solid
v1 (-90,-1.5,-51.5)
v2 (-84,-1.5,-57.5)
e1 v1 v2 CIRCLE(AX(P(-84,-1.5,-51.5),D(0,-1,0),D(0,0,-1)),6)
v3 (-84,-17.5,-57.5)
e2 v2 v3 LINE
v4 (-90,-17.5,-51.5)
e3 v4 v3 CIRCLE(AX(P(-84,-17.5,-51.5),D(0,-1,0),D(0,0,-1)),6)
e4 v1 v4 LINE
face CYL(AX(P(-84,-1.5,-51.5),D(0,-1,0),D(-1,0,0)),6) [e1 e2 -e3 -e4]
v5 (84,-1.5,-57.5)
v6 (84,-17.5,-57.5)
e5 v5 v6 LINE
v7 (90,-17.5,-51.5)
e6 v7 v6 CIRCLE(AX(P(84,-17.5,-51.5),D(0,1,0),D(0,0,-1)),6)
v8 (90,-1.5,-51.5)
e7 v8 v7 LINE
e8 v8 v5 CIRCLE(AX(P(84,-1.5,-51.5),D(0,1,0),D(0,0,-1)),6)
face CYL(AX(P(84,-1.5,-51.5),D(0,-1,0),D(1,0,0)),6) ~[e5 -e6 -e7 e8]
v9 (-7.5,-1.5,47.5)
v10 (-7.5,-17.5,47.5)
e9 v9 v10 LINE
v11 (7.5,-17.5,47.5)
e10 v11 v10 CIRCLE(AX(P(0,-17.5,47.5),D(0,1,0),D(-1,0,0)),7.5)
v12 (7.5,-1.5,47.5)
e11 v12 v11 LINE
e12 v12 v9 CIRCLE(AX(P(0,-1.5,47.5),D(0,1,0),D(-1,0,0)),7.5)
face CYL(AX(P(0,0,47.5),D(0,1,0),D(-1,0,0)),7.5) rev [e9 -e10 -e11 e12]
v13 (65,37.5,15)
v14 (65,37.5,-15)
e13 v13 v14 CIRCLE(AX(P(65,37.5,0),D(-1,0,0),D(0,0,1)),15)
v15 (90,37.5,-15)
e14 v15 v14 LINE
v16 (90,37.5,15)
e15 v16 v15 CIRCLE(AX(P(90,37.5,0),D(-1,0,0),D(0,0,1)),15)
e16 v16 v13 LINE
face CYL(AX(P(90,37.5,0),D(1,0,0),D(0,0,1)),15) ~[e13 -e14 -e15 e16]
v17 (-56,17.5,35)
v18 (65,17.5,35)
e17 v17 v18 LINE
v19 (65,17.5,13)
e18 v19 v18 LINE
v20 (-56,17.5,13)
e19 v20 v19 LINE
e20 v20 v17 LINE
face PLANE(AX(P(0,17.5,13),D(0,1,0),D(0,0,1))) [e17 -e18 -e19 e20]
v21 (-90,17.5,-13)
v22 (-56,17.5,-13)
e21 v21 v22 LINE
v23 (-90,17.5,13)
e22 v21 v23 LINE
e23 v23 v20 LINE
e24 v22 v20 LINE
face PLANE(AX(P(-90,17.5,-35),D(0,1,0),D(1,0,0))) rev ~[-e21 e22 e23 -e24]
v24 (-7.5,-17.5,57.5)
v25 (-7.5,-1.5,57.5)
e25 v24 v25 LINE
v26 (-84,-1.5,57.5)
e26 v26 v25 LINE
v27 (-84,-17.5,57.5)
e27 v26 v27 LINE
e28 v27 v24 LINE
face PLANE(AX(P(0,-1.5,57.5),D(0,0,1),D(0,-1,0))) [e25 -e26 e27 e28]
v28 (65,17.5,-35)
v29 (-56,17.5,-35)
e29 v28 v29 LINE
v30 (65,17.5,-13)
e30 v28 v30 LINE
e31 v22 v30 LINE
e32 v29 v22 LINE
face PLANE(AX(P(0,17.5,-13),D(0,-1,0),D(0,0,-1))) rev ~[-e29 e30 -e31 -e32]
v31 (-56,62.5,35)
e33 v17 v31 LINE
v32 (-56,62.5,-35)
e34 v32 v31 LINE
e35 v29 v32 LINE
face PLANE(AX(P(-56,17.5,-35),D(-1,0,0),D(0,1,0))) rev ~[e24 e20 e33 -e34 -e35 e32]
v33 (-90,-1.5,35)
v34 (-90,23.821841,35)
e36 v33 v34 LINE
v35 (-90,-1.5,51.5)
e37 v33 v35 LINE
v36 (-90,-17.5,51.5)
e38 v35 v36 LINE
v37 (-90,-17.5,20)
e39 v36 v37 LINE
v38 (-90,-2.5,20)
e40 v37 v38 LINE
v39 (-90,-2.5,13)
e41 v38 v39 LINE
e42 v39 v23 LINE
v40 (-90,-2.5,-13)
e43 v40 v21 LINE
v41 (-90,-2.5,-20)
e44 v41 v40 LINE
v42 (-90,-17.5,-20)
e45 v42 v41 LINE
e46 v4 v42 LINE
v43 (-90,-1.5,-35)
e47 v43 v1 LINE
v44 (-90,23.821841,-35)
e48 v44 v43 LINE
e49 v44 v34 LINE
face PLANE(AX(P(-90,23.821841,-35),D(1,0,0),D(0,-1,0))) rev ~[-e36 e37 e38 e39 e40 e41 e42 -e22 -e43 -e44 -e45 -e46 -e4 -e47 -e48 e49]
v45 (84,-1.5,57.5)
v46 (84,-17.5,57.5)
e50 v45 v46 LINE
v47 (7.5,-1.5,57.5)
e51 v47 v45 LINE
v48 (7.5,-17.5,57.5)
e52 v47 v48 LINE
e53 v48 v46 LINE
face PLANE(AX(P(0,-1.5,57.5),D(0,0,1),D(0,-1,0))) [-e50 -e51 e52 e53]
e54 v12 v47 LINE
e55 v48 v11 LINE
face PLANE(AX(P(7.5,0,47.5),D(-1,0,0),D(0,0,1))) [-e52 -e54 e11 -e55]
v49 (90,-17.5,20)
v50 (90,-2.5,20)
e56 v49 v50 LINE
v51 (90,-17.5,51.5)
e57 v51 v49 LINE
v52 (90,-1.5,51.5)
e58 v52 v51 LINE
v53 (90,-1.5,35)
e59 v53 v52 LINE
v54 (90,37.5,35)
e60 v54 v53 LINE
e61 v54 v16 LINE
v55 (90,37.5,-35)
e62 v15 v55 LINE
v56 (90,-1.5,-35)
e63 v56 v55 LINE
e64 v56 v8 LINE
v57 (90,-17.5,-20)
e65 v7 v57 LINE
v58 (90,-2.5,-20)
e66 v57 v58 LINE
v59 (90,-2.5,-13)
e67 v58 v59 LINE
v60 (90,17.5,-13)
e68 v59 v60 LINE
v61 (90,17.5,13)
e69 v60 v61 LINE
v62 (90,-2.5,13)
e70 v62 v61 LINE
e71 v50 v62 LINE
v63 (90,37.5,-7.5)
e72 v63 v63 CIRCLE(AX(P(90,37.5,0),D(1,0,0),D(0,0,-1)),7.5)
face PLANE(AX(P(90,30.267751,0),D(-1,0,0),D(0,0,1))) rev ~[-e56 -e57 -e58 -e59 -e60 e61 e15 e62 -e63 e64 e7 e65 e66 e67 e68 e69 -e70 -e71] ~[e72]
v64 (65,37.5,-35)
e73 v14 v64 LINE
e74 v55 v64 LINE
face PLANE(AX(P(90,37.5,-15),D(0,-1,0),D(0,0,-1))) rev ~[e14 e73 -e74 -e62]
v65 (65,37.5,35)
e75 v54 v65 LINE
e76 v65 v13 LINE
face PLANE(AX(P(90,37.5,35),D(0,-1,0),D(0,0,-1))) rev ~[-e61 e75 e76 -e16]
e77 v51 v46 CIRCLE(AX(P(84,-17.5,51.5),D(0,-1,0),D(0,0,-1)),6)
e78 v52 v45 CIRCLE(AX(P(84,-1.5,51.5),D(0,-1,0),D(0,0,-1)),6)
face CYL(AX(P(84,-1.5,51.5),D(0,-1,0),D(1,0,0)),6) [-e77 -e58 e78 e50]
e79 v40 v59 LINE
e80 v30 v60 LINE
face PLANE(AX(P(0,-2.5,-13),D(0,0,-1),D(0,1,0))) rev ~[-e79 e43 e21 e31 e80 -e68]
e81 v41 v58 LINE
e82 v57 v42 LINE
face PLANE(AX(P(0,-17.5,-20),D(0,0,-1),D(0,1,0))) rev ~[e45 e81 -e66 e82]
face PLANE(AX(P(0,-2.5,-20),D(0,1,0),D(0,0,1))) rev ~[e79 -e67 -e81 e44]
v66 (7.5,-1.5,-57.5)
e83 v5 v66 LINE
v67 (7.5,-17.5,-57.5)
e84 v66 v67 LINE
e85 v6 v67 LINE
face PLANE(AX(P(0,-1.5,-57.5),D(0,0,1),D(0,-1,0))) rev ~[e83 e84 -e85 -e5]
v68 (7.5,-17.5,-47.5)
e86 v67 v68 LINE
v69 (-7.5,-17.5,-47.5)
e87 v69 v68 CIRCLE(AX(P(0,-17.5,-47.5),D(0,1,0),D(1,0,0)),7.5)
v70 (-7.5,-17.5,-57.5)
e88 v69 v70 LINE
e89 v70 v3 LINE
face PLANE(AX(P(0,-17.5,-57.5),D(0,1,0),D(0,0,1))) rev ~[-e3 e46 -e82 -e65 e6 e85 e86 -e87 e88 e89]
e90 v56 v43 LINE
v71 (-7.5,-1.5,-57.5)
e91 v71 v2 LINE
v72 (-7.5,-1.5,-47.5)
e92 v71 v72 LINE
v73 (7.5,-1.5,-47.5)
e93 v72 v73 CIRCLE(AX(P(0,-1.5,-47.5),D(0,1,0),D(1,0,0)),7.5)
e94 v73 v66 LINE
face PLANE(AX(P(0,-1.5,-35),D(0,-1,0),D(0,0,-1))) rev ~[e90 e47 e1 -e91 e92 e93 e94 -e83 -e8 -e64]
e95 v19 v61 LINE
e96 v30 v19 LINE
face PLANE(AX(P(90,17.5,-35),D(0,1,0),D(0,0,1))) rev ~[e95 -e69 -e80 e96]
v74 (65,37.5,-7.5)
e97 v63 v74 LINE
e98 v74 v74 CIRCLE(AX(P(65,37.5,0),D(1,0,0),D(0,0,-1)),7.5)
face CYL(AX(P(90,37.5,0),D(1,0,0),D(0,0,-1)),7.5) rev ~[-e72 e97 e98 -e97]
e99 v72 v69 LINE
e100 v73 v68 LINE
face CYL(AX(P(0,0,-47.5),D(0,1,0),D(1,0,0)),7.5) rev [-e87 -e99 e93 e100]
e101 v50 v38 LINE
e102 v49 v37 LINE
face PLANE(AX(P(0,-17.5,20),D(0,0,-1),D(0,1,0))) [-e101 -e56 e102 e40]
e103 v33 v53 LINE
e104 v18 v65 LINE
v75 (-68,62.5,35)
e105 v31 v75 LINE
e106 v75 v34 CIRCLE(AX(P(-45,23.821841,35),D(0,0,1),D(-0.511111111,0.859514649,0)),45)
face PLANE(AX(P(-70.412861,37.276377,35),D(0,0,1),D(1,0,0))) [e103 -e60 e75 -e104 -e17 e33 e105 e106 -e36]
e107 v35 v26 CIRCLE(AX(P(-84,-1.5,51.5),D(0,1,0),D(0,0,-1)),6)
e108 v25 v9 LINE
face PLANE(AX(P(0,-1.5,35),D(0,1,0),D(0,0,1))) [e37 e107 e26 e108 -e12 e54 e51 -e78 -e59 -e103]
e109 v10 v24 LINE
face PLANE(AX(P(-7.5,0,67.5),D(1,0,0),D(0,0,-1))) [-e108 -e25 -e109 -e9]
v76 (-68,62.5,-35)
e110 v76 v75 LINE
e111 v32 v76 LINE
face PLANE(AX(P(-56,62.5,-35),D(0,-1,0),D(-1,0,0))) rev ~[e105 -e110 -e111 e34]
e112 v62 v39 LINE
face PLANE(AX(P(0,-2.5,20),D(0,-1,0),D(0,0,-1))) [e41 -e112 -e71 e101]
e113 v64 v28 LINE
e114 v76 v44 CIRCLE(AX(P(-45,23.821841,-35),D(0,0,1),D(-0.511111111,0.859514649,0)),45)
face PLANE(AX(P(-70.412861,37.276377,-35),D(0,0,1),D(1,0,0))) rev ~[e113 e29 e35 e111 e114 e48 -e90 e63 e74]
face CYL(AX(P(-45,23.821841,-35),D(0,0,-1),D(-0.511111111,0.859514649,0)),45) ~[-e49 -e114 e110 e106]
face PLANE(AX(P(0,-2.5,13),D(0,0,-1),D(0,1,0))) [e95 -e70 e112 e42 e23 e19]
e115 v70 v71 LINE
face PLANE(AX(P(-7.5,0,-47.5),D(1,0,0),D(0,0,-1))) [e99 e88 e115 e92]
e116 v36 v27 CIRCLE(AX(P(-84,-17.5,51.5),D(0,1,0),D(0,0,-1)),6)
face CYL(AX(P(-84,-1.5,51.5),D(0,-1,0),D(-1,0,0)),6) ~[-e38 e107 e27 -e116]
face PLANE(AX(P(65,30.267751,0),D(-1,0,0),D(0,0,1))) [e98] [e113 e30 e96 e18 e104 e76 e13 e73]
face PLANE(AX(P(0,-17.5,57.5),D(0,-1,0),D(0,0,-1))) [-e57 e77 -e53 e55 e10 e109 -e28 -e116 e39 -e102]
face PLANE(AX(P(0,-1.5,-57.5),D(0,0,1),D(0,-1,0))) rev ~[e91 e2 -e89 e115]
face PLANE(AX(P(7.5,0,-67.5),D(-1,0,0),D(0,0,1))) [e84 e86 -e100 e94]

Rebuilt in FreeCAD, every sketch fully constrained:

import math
import FreeCAD as App
import Part
import Sketcher

V = App.Vector


def edges_at(feature, points):
    """Names of the edges that pass closest to the given points."""
    edges = feature.Shape.Edges
    near = lambda p: min(range(len(edges)), key=lambda i: edges[i].distToShape(Part.Vertex(*p))[0])
    return sorted({f"Edge{near(p) + 1}" for p in points})


def add_polygon(sketch, points):
    """Adds a closed chain of lines whose ends are joined by coincident constraints."""
    first, n = sketch.GeometryCount, len(points)
    for a, b in zip(points, points[1:] + points[:1]):
        sketch.addGeometry(Part.LineSegment(App.Vector(*a, 0), App.Vector(*b, 0)), False)
    for i in range(n):
        sketch.addConstraint(Sketcher.Constraint("Coincident", first + i, 2, first + (i + 1) % n, 1))

doc = App.newDocument("Part")
body = doc.addObject("PartDesign::Body", "Body")

# Sketch on YZ plane
sketch1 = body.newObject("Sketcher::SketchObject", "Sketch")
sketch1.AttachmentSupport = (doc.getObject("YZ_Plane"), [""])
sketch1.MapMode = "FlatFace"
add_polygon(sketch1, [(17.5, -35), (17.5, -13), (-2.5, -13), (-2.5, -20), (-17.5, -20), (-17.5, -57.5), (-1.5, -57.5), (-1.5, -35)])  # lines 0-7
sketch1.addConstraint(Sketcher.Constraint("Vertical", 0))
sketch1.addConstraint(Sketcher.Constraint("Horizontal", 1))
sketch1.addConstraint(Sketcher.Constraint("Vertical", 2))
sketch1.addConstraint(Sketcher.Constraint("Horizontal", 3))
sketch1.addConstraint(Sketcher.Constraint("Vertical", 4))
sketch1.addConstraint(Sketcher.Constraint("Horizontal", 5))
sketch1.addConstraint(Sketcher.Constraint("Vertical", 6))
sketch1.addConstraint(Sketcher.Constraint("Horizontal", 7))
sketch1.addConstraint(Sketcher.Constraint("DistanceX", 1, 2, 1, 1, 20.0))
sketch1.addConstraint(Sketcher.Constraint("DistanceX", 3, 2, 3, 1, 15.0))
sketch1.addConstraint(Sketcher.Constraint("DistanceX", 5, 1, 5, 2, 16.0))
sketch1.addConstraint(Sketcher.Constraint("DistanceY", 0, 1, 0, 2, 22.0))
sketch1.addConstraint(Sketcher.Constraint("DistanceY", 2, 2, 2, 1, 7.0))
sketch1.addConstraint(Sketcher.Constraint("DistanceY", 4, 2, 4, 1, 37.5))
sketch1.addConstraint(Sketcher.Constraint("DistanceY", 0, 2, -1, 1, 13.0))
sketch1.addConstraint(Sketcher.Constraint("DistanceX", -1, 1, 0, 2, 17.5))
pad1 = body.newObject("PartDesign::Pad", "Pad")
pad1.Profile = sketch1
pad1.Length = 180
pad1.Midplane = True
body2 = doc.addObject("PartDesign::Body", "Body001")

# Sketch on YZ plane
sketch2 = body2.newObject("Sketcher::SketchObject", "Sketch001")
sketch2.AttachmentSupport = (doc.getObject("YZ_Plane001"), [""])
sketch2.MapMode = "FlatFace"
add_polygon(sketch2, [(-2.5, 13), (17.5, 13), (17.5, 35), (-1.5, 35), (-1.5, 57.5), (-17.5, 57.5), (-17.5, 20), (-2.5, 20)])  # lines 0-7
sketch2.addConstraint(Sketcher.Constraint("Horizontal", 0))
sketch2.addConstraint(Sketcher.Constraint("Vertical", 1))
sketch2.addConstraint(Sketcher.Constraint("Horizontal", 2))
sketch2.addConstraint(Sketcher.Constraint("Vertical", 3))
sketch2.addConstraint(Sketcher.Constraint("Horizontal", 4))
sketch2.addConstraint(Sketcher.Constraint("Vertical", 5))
sketch2.addConstraint(Sketcher.Constraint("Horizontal", 6))
sketch2.addConstraint(Sketcher.Constraint("Vertical", 7))
sketch2.addConstraint(Sketcher.Constraint("DistanceX", 0, 1, 0, 2, 20.0))
sketch2.addConstraint(Sketcher.Constraint("DistanceX", 2, 2, 2, 1, 19.0))
sketch2.addConstraint(Sketcher.Constraint("DistanceX", 4, 2, 4, 1, 16.0))
sketch2.addConstraint(Sketcher.Constraint("DistanceY", 1, 1, 1, 2, 22.0))
sketch2.addConstraint(Sketcher.Constraint("DistanceY", 7, 2, 7, 1, 7.0))
sketch2.addConstraint(Sketcher.Constraint("DistanceY", 3, 1, 3, 2, 22.5))
sketch2.addConstraint(Sketcher.Constraint("DistanceY", -1, 1, 0, 2, 13.0))
sketch2.addConstraint(Sketcher.Constraint("DistanceX", -1, 1, 0, 2, 17.5))
pad2 = body2.newObject("PartDesign::Pad", "Pad001")
pad2.Profile = sketch2
pad2.Length = 180
pad2.Midplane = True
body.AllowCompound = True
doc.recompute()

boolean = body.newObject("PartDesign::Boolean", "Boolean")
boolean.Type = "Fuse"
boolean.addObjects([body2])

# Sketch on YZ plane
sketch3 = body.newObject("Sketcher::SketchObject", "Sketch002")
sketch3.AttachmentSupport = (doc.getObject("YZ_Plane"), [""])
sketch3.MapMode = "FlatFace"
sketch3.AttachmentOffset = App.Placement(V(0, 0, 90), App.Rotation())
sketch3.addGeometry(Part.LineSegment(V(17.5, 35, 0), V(17.5, -35, 0)), False)
sketch3.addGeometry(Part.LineSegment(V(17.5, -35, 0), V(37.5, -35, 0)), False)
sketch3.addGeometry(Part.LineSegment(V(37.5, -35, 0), V(37.5, -15, 0)), False)
sketch3.addGeometry(Part.ArcOfCircle(Part.Circle(V(37.5, 0, 0), V(0, 0, 1), 15), math.radians(-90), math.radians(90)), False)
sketch3.addGeometry(Part.LineSegment(V(37.5, 15, 0), V(37.5, 35, 0)), False)
sketch3.addGeometry(Part.LineSegment(V(37.5, 35, 0), V(17.5, 35, 0)), False)
sketch3.addGeometry(Part.Circle(V(37.5, 0, 0), V(0, 0, 1), 7.5), False)
sketch3.addConstraint(Sketcher.Constraint("Coincident", 0, 2, 1, 1))
sketch3.addConstraint(Sketcher.Constraint("Coincident", 1, 2, 2, 1))
sketch3.addConstraint(Sketcher.Constraint("Coincident", 2, 2, 3, 1))
sketch3.addConstraint(Sketcher.Constraint("Coincident", 3, 2, 4, 1))
sketch3.addConstraint(Sketcher.Constraint("Coincident", 4, 2, 5, 1))
sketch3.addConstraint(Sketcher.Constraint("Coincident", 5, 2, 0, 1))
sketch3.addConstraint(Sketcher.Constraint("Vertical", 0))
sketch3.addConstraint(Sketcher.Constraint("Horizontal", 1))
sketch3.addConstraint(Sketcher.Constraint("Vertical", 2))
sketch3.addConstraint(Sketcher.Constraint("Vertical", 4))
sketch3.addConstraint(Sketcher.Constraint("Horizontal", 5))
sketch3.addConstraint(Sketcher.Constraint("Coincident", 6, 3, 3, 3))
sketch3.addConstraint(Sketcher.Constraint("Symmetric", 2, 2, 3, 2, -1))
sketch3.addConstraint(Sketcher.Constraint("Vertical", 6, 3, 1, 2))
sketch3.addConstraint(Sketcher.Constraint("Equal", 5, 2))
sketch3.addConstraint(Sketcher.Constraint("Equal", 2, 4))
sketch3.addConstraint(Sketcher.Constraint("Diameter", 6, 15.0))
sketch3.addConstraint(Sketcher.Constraint("Radius", 3, 15.0))
sketch3.addConstraint(Sketcher.Constraint("DistanceX", 1, 1, 1, 2, 20.0))
sketch3.addConstraint(Sketcher.Constraint("DistanceX", -1, 1, 3, 3, 37.5))
pad3 = body.newObject("PartDesign::Pad", "Pad002")
pad3.Profile = sketch3
pad3.Length = 25
pad3.Reversed = True

# Sketch on XY plane
sketch4 = body.newObject("Sketcher::SketchObject", "Sketch003")
sketch4.AttachmentSupport = (doc.getObject("XY_Plane"), [""])
sketch4.MapMode = "FlatFace"
sketch4.AttachmentOffset = App.Placement(V(0, 0, -35), App.Rotation())
sketch4.addGeometry(Part.LineSegment(V(-56, 17.5, 0), V(-90, 17.5, 0)), False)
sketch4.addGeometry(Part.LineSegment(V(-90, 17.5, 0), V(-90, 23.821841, 0)), False)
sketch4.addGeometry(Part.ArcOfCircle(Part.Circle(V(-45, 23.821841, 0), V(0, 0, 1), 45), math.radians(120.737869), math.radians(180)), False)
sketch4.addGeometry(Part.LineSegment(V(-68, 62.5, 0), V(-56, 62.5, 0)), False)
sketch4.addGeometry(Part.LineSegment(V(-56, 62.5, 0), V(-56, 17.5, 0)), False)
sketch4.addConstraint(Sketcher.Constraint("Coincident", 0, 2, 1, 1))
sketch4.addConstraint(Sketcher.Constraint("Tangent", 1, 2, 2, 2))
sketch4.addConstraint(Sketcher.Constraint("Coincident", 2, 1, 3, 1))
sketch4.addConstraint(Sketcher.Constraint("Coincident", 3, 2, 4, 1))
sketch4.addConstraint(Sketcher.Constraint("Coincident", 4, 2, 0, 1))
sketch4.addConstraint(Sketcher.Constraint("Horizontal", 0))
sketch4.addConstraint(Sketcher.Constraint("Vertical", 1))
sketch4.addConstraint(Sketcher.Constraint("Horizontal", 3))
sketch4.addConstraint(Sketcher.Constraint("Vertical", 4))
sketch4.addConstraint(Sketcher.Constraint("Radius", 2, 45.0))
sketch4.addConstraint(Sketcher.Constraint("DistanceX", 0, 2, 0, 1, 34.0))
sketch4.addConstraint(Sketcher.Constraint("DistanceX", 3, 1, 3, 2, 12.0))
sketch4.addConstraint(Sketcher.Constraint("DistanceY", 4, 2, 4, 1, 45.0))
sketch4.addConstraint(Sketcher.Constraint("DistanceX", 2, 3, -1, 1, 45.0))
sketch4.addConstraint(Sketcher.Constraint("DistanceY", -1, 1, 0, 2, 17.5))
pad4 = body.newObject("PartDesign::Pad", "Pad003")
pad4.Profile = sketch4
pad4.Length = 70
doc.recompute()

fillet = body.newObject("PartDesign::Fillet", "Fillet")
fillet.Base = (pad4, edges_at(pad4, [
    (90, -9.5, -57.5),
    (-90, -9.5, 57.5),
    (90, -9.5, 57.5),
    (-90, -9.5, -57.5),
]))
fillet.Radius = 6

# Sketch on XZ plane
sketch5 = body.newObject("Sketcher::SketchObject", "Sketch004")
sketch5.AttachmentSupport = (doc.getObject("XZ_Plane"), [""])
sketch5.MapMode = "FlatFace"
sketch5.addGeometry(Part.LineSegment(V(7.5, -47.5, 0), V(7.5, -67.5, 0)), False)
sketch5.addGeometry(Part.ArcOfCircle(Part.Circle(V(0, -67.5, 0), V(0, 0, 1), 7.5), math.radians(180), math.radians(360)), False)
sketch5.addGeometry(Part.LineSegment(V(-7.5, -67.5, 0), V(-7.5, -47.5, 0)), False)
sketch5.addGeometry(Part.ArcOfCircle(Part.Circle(V(0, -47.5, 0), V(0, 0, 1), 7.5), math.radians(0), math.radians(180)), False)
sketch5.addGeometry(Part.LineSegment(V(-7.5, 47.5, 0), V(-7.5, 67.5, 0)), False)
sketch5.addGeometry(Part.ArcOfCircle(Part.Circle(V(0, 67.5, 0), V(0, 0, 1), 7.5), math.radians(0), math.radians(180)), False)
sketch5.addGeometry(Part.LineSegment(V(7.5, 67.5, 0), V(7.5, 47.5, 0)), False)
sketch5.addGeometry(Part.ArcOfCircle(Part.Circle(V(0, 47.5, 0), V(0, 0, 1), 7.5), math.radians(180), math.radians(360)), False)
sketch5.addConstraint(Sketcher.Constraint("Tangent", 0, 2, 1, 2))
sketch5.addConstraint(Sketcher.Constraint("Tangent", 1, 1, 2, 1))
sketch5.addConstraint(Sketcher.Constraint("Tangent", 2, 2, 3, 2))
sketch5.addConstraint(Sketcher.Constraint("Tangent", 3, 1, 0, 1))
sketch5.addConstraint(Sketcher.Constraint("Tangent", 4, 2, 5, 2))
sketch5.addConstraint(Sketcher.Constraint("Tangent", 5, 1, 6, 1))
sketch5.addConstraint(Sketcher.Constraint("Tangent", 6, 2, 7, 2))
sketch5.addConstraint(Sketcher.Constraint("Tangent", 7, 1, 4, 1))
sketch5.addConstraint(Sketcher.Constraint("Vertical", 0))
sketch5.addConstraint(Sketcher.Constraint("Vertical", 2))
sketch5.addConstraint(Sketcher.Constraint("Vertical", 4))
sketch5.addConstraint(Sketcher.Constraint("Vertical", 6))
sketch5.addConstraint(Sketcher.Constraint("Equal", 3, 5))
sketch5.addConstraint(Sketcher.Constraint("Symmetric", 1, 3, 5, 3, -1, 1))
sketch5.addConstraint(Sketcher.Constraint("Symmetric", 3, 3, 7, 3, -1))
sketch5.addConstraint(Sketcher.Constraint("Radius", 1, 7.5))
sketch5.addConstraint(Sketcher.Constraint("DistanceY", 0, 2, 0, 1, 20.0))
sketch5.addConstraint(Sketcher.Constraint("DistanceY", 3, 3, 5, 3, 115.0))
pocket1 = body.newObject("PartDesign::Pocket", "Pocket")
pocket1.Profile = sketch5
pocket1.Type = "ThroughAll"
pocket1.Reversed = True

doc.recompute()
